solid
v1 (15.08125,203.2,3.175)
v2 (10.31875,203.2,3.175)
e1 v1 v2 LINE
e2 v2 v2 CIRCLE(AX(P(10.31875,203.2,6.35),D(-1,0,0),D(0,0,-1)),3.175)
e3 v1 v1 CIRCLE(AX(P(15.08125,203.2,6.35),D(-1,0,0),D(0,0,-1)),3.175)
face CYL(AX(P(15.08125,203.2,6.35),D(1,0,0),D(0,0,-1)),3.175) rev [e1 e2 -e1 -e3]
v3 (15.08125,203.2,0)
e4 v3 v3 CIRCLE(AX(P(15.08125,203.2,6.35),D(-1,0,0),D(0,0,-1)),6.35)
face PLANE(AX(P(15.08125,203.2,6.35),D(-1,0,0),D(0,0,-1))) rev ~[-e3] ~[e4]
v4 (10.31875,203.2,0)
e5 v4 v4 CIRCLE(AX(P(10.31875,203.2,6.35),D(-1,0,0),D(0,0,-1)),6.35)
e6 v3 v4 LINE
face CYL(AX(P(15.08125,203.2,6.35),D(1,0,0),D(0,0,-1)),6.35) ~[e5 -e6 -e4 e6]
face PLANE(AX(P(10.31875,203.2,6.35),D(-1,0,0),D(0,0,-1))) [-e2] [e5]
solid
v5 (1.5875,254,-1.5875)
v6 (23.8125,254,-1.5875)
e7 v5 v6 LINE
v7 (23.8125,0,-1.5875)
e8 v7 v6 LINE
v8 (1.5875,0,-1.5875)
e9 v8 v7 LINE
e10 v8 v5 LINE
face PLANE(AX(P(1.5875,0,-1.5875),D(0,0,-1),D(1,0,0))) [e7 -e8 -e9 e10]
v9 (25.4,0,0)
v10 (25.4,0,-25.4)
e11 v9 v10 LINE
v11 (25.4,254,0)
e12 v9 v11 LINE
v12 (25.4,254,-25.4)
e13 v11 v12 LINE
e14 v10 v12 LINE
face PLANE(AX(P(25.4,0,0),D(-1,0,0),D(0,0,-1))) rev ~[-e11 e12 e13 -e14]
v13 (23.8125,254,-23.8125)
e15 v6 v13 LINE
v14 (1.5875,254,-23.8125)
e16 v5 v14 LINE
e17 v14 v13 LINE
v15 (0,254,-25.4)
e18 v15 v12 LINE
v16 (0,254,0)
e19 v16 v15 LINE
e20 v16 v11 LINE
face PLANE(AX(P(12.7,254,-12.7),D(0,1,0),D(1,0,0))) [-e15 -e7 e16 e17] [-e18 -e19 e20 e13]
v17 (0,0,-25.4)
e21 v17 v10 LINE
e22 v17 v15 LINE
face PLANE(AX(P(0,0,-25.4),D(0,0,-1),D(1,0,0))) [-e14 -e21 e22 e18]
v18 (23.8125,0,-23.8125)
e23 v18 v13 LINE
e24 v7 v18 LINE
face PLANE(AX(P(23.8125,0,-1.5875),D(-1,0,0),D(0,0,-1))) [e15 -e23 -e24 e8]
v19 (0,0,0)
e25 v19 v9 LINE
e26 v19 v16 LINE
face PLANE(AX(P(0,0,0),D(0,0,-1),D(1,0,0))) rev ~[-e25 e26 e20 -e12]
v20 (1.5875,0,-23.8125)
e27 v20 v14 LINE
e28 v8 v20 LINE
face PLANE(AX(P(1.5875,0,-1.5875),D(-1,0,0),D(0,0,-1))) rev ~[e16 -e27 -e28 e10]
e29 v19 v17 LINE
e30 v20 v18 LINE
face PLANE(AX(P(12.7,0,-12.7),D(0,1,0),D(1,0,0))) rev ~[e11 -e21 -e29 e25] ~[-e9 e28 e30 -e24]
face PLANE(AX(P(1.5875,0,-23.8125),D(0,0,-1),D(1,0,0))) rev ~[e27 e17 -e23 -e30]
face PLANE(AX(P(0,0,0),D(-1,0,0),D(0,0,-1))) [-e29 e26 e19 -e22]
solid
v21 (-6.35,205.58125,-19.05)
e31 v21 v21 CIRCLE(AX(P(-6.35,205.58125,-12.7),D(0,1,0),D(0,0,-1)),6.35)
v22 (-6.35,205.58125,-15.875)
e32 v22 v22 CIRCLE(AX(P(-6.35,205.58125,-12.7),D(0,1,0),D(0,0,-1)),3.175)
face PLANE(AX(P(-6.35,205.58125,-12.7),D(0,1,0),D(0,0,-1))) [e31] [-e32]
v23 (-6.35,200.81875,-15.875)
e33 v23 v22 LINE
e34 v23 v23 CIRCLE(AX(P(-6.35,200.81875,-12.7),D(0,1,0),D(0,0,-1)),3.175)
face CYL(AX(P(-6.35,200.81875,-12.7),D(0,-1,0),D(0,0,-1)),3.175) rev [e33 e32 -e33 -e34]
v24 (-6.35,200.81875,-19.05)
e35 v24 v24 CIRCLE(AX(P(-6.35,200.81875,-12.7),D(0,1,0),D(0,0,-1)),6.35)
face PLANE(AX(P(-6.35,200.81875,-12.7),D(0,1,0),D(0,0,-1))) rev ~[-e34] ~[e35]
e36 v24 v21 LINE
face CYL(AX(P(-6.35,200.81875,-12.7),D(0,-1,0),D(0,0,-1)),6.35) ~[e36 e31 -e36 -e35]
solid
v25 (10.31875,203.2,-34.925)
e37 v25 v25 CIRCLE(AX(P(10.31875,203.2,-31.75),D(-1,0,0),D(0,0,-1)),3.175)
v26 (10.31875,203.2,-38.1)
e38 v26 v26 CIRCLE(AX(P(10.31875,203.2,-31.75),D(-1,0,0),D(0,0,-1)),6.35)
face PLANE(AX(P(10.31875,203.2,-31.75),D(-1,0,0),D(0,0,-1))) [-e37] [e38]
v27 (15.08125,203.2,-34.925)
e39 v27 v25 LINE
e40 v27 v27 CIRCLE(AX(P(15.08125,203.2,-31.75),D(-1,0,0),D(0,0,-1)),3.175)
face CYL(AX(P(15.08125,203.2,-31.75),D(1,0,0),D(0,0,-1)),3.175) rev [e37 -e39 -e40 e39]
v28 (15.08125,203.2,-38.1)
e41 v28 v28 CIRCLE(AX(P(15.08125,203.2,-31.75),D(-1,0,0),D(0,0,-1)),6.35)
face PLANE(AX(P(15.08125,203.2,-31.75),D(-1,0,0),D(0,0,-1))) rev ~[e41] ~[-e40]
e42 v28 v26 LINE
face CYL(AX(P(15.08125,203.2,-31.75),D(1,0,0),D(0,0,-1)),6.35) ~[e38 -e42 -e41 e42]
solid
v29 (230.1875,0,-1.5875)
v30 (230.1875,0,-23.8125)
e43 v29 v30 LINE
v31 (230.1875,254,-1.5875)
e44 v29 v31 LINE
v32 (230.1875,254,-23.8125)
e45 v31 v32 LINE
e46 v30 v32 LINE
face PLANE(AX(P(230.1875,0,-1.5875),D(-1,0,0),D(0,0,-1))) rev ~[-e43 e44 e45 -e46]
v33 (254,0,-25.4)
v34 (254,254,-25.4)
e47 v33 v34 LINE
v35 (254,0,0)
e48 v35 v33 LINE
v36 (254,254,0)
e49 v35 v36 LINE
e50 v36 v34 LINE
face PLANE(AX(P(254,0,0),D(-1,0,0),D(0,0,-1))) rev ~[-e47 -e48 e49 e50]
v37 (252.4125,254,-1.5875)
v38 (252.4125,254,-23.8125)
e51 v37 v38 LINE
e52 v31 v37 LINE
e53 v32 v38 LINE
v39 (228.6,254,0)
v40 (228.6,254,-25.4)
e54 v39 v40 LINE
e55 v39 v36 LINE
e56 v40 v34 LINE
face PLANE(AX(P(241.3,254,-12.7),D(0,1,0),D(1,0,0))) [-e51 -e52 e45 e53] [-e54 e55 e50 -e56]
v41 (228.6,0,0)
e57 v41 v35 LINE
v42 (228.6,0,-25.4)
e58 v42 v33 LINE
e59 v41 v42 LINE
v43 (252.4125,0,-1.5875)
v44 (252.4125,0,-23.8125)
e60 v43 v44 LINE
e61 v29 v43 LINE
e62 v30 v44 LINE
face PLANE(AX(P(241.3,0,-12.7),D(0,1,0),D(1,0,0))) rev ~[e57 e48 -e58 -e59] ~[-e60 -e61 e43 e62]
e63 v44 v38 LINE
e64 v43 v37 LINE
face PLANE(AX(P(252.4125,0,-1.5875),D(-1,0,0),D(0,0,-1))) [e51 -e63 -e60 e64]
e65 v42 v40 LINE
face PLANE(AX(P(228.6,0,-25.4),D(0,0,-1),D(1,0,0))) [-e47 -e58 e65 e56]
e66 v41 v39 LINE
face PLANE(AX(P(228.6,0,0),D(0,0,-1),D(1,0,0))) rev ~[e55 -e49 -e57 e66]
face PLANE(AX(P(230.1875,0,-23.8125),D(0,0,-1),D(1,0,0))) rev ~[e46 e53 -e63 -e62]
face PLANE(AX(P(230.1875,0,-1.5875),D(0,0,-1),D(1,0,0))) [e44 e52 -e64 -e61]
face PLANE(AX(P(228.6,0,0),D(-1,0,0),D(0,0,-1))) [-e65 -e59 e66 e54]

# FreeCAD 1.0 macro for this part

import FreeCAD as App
import Part
import Sketcher
Q = App.Units.Quantity

doc = App.newDocument("Part")
body = doc.addObject("PartDesign::Body", "Body")

sketch1 = body.newObject("Sketcher::SketchObject", "Sketch")
sketch1.AttachmentSupport = (doc.getObject("XZ_Plane"), [""])
sketch1.MapMode = "FlatFace"
sketch1.addGeometry(Part.LineSegment(App.Vector(0, -25.4, 0), App.Vector(0, 0, 0)), False)
sketch1.addGeometry(Part.LineSegment(App.Vector(0, 0, 0), App.Vector(25.4, 0, 0)), False)
sketch1.addGeometry(Part.LineSegment(App.Vector(25.4, 0, 0), App.Vector(25.4, -25.4, 0)), False)
sketch1.addGeometry(Part.LineSegment(App.Vector(25.4, -25.4, 0), App.Vector(0, -25.4, 0)), False)
sketch1.addGeometry(Part.LineSegment(App.Vector(23.8125, -1.5875, 0), App.Vector(1.5875, -1.5875, 0)), False)
sketch1.addGeometry(Part.LineSegment(App.Vector(1.5875, -1.5875, 0), App.Vector(1.5875, -23.8125, 0)), False)
sketch1.addGeometry(Part.LineSegment(App.Vector(1.5875, -23.8125, 0), App.Vector(23.8125, -23.8125, 0)), False)
sketch1.addGeometry(Part.LineSegment(App.Vector(23.8125, -23.8125, 0), App.Vector(23.8125, -1.5875, 0)), False)
sketch1.addConstraint(Sketcher.Constraint("Coincident", 0, 2, 1, 1))
sketch1.addConstraint(Sketcher.Constraint("Coincident", 1, 2, 2, 1))
sketch1.addConstraint(Sketcher.Constraint("Coincident", 2, 2, 3, 1))
sketch1.addConstraint(Sketcher.Constraint("Coincident", 3, 2, 0, 1))
sketch1.addConstraint(Sketcher.Constraint("Coincident", 4, 2, 5, 1))
sketch1.addConstraint(Sketcher.Constraint("Coincident", 5, 2, 6, 1))
sketch1.addConstraint(Sketcher.Constraint("Coincident", 6, 2, 7, 1))
sketch1.addConstraint(Sketcher.Constraint("Coincident", 7, 2, 4, 1))
sketch1.addConstraint(Sketcher.Constraint("Vertical", 0))
sketch1.addConstraint(Sketcher.Constraint("Horizontal", 1))
sketch1.addConstraint(Sketcher.Constraint("Vertical", 2))
sketch1.addConstraint(Sketcher.Constraint("Horizontal", 3))
sketch1.addConstraint(Sketcher.Constraint("Horizontal", 4))
sketch1.addConstraint(Sketcher.Constraint("Vertical", 5))
sketch1.addConstraint(Sketcher.Constraint("Horizontal", 6))
sketch1.addConstraint(Sketcher.Constraint("Vertical", 7))
sketch1.addConstraint(Sketcher.Constraint("Coincident", 0, 2, -1, 1))
sketch1.addConstraint(Sketcher.Constraint("Equal", 3, 0))
sketch1.addConstraint(Sketcher.Constraint("Equal", 6, 5))
sketch1.addConstraint(Sketcher.Constraint("DistanceX", 1, 1, 1, 2, Q("1 in")))
sketch1.addConstraint(Sketcher.Constraint("DistanceX", 4, 2, 4, 1, Q("0.875 in")))
sketch1.addConstraint(Sketcher.Constraint("DistanceX", -1, 1, 4, 2, Q("0.0625 in")))
sketch1.addConstraint(Sketcher.Constraint("DistanceY", 4, 2, -1, 1, Q("0.0625 in")))
pad1 = body.newObject("PartDesign::Pad", "Pad")
pad1.Profile = sketch1
pad1.Length = Q("10 in")
pad1.Reversed = True
body2 = doc.addObject("PartDesign::Body", "Body001")

sketch2 = body2.newObject("Sketcher::SketchObject", "Sketch001")
sketch2.AttachmentSupport = (doc.getObject("XZ_Plane001"), [""])
sketch2.MapMode = "FlatFace"
sketch2.addGeometry(Part.LineSegment(App.Vector(228.6, -25.4, 0), App.Vector(228.6, 0, 0)), False)
sketch2.addGeometry(Part.LineSegment(App.Vector(228.6, 0, 0), App.Vector(254, 0, 0)), False)
sketch2.addGeometry(Part.LineSegment(App.Vector(254, 0, 0), App.Vector(254, -25.4, 0)), False)
sketch2.addGeometry(Part.LineSegment(App.Vector(254, -25.4, 0), App.Vector(228.6, -25.4, 0)), False)
sketch2.addGeometry(Part.LineSegment(App.Vector(252.4125, -1.5875, 0), App.Vector(230.1875, -1.5875, 0)), False)
sketch2.addGeometry(Part.LineSegment(App.Vector(230.1875, -1.5875, 0), App.Vector(230.1875, -23.8125, 0)), False)
sketch2.addGeometry(Part.LineSegment(App.Vector(230.1875, -23.8125, 0), App.Vector(252.4125, -23.8125, 0)), False)
sketch2.addGeometry(Part.LineSegment(App.Vector(252.4125, -23.8125, 0), App.Vector(252.4125, -1.5875, 0)), False)
sketch2.addConstraint(Sketcher.Constraint("Coincident", 0, 2, 1, 1))
sketch2.addConstraint(Sketcher.Constraint("Coincident", 1, 2, 2, 1))
sketch2.addConstraint(Sketcher.Constraint("Coincident", 2, 2, 3, 1))
sketch2.addConstraint(Sketcher.Constraint("Coincident", 3, 2, 0, 1))
sketch2.addConstraint(Sketcher.Constraint("Coincident", 4, 2, 5, 1))
sketch2.addConstraint(Sketcher.Constraint("Coincident", 5, 2, 6, 1))
sketch2.addConstraint(Sketcher.Constraint("Coincident", 6, 2, 7, 1))
sketch2.addConstraint(Sketcher.Constraint("Coincident", 7, 2, 4, 1))
sketch2.addConstraint(Sketcher.Constraint("Vertical", 0))
sketch2.addConstraint(Sketcher.Constraint("Horizontal", 1))
sketch2.addConstraint(Sketcher.Constraint("Vertical", 2))
sketch2.addConstraint(Sketcher.Constraint("Horizontal", 3))
sketch2.addConstraint(Sketcher.Constraint("Horizontal", 4))
sketch2.addConstraint(Sketcher.Constraint("Vertical", 5))
sketch2.addConstraint(Sketcher.Constraint("Horizontal", 6))
sketch2.addConstraint(Sketcher.Constraint("Vertical", 7))
sketch2.addConstraint(Sketcher.Constraint("PointOnObject", 0, 2, -1))
sketch2.addConstraint(Sketcher.Constraint("Equal", 3, 0))
sketch2.addConstraint(Sketcher.Constraint("Equal", 6, 5))
sketch2.addConstraint(Sketcher.Constraint("DistanceX", 1, 1, 1, 2, Q("1 in")))
sketch2.addConstraint(Sketcher.Constraint("DistanceX", -1, 1, 0, 2, Q("9 in")))
sketch2.addConstraint(Sketcher.Constraint("DistanceX", 4, 2, 4, 1, Q("0.875 in")))
sketch2.addConstraint(Sketcher.Constraint("DistanceX", -1, 1, 4, 2, Q("9.0625 in")))
sketch2.addConstraint(Sketcher.Constraint("DistanceY", 4, 2, -1, 1, Q("0.0625 in")))
pad2 = body2.newObject("PartDesign::Pad", "Pad001")
pad2.Profile = sketch2
pad2.Length = Q("10 in")
pad2.Reversed = True
body3 = doc.addObject("PartDesign::Body", "Body002")

sketch3 = body3.newObject("Sketcher::SketchObject", "Sketch002")
sketch3.AttachmentSupport = (doc.getObject("YZ_Plane002"), [""])
sketch3.MapMode = "FlatFace"
sketch3.AttachmentOffset = App.Placement(App.Vector(0, 0, 0.59375 * 25.4), App.Rotation())
sketch3.addGeometry(Part.Circle(App.Vector(203.2, -31.75, 0), App.Vector(0, 0, 1), 6.35), False)
sketch3.addGeometry(Part.Circle(App.Vector(203.2, -31.75, 0), App.Vector(0, 0, 1), 3.175), False)
sketch3.addConstraint(Sketcher.Constraint("Coincident", 1, 3, 0, 3))
sketch3.addConstraint(Sketcher.Constraint("Diameter", 0, Q("0.5 in")))
sketch3.addConstraint(Sketcher.Constraint("Diameter", 1, Q("0.25 in")))
sketch3.addConstraint(Sketcher.Constraint("DistanceX", -1, 1, 0, 3, Q("8 in")))
sketch3.addConstraint(Sketcher.Constraint("DistanceY", 0, 3, -1, 1, Q("1.25 in")))
pad3 = body3.newObject("PartDesign::Pad", "Pad002")
pad3.Profile = sketch3
pad3.Length = Q("0.1875 in")
pad3.Reversed = True
body4 = doc.addObject("PartDesign::Body", "Body003")

sketch4 = body4.newObject("Sketcher::SketchObject", "Sketch003")
sketch4.AttachmentSupport = (doc.getObject("YZ_Plane003"), [""])
sketch4.MapMode = "FlatFace"
sketch4.AttachmentOffset = App.Placement(App.Vector(0, 0, 0.59375 * 25.4), App.Rotation())
sketch4.addGeometry(Part.Circle(App.Vector(203.2, 6.35, 0), App.Vector(0, 0, 1), 6.35), False)
sketch4.addGeometry(Part.Circle(App.Vector(203.2, 6.35, 0), App.Vector(0, 0, 1), 3.175), False)
sketch4.addConstraint(Sketcher.Constraint("Coincident", 1, 3, 0, 3))
sketch4.addConstraint(Sketcher.Constraint("Diameter", 0, Q("0.5 in")))
sketch4.addConstraint(Sketcher.Constraint("Diameter", 1, Q("0.25 in")))
sketch4.addConstraint(Sketcher.Constraint("DistanceX", -1, 1, 0, 3, Q("8 in")))
sketch4.addConstraint(Sketcher.Constraint("DistanceY", -1, 1, 0, 3, Q("0.25 in")))
pad4 = body4.newObject("PartDesign::Pad", "Pad003")
pad4.Profile = sketch4
pad4.Length = Q("0.1875 in")
pad4.Reversed = True
body5 = doc.addObject("PartDesign::Body", "Body004")

sketch5 = body5.newObject("Sketcher::SketchObject", "Sketch004")
sketch5.AttachmentSupport = (doc.getObject("XZ_Plane004"), [""])
sketch5.MapMode = "FlatFace"
sketch5.AttachmentOffset = App.Placement(App.Vector(0, 0, -7.90625 * 25.4), App.Rotation())
sketch5.addGeometry(Part.Circle(App.Vector(-6.35, -12.7, 0), App.Vector(0, 0, 1), 6.35), False)
sketch5.addGeometry(Part.Circle(App.Vector(-6.35, -12.7, 0), App.Vector(0, 0, 1), 3.175), False)
sketch5.addConstraint(Sketcher.Constraint("Coincident", 1, 3, 0, 3))
sketch5.addConstraint(Sketcher.Constraint("Diameter", 0, Q("0.5 in")))
sketch5.addConstraint(Sketcher.Constraint("Diameter", 1, Q("0.25 in")))
sketch5.addConstraint(Sketcher.Constraint("DistanceY", 0, 3, -1, 1, Q("0.5 in")))
sketch5.addConstraint(Sketcher.Constraint("DistanceX", 0, 3, -1, 1, Q("0.25 in")))
pad5 = body5.newObject("PartDesign::Pad", "Pad004")
pad5.Profile = sketch5
pad5.Length = Q("0.1875 in")
pad5.Reversed = True

doc.recompute()
